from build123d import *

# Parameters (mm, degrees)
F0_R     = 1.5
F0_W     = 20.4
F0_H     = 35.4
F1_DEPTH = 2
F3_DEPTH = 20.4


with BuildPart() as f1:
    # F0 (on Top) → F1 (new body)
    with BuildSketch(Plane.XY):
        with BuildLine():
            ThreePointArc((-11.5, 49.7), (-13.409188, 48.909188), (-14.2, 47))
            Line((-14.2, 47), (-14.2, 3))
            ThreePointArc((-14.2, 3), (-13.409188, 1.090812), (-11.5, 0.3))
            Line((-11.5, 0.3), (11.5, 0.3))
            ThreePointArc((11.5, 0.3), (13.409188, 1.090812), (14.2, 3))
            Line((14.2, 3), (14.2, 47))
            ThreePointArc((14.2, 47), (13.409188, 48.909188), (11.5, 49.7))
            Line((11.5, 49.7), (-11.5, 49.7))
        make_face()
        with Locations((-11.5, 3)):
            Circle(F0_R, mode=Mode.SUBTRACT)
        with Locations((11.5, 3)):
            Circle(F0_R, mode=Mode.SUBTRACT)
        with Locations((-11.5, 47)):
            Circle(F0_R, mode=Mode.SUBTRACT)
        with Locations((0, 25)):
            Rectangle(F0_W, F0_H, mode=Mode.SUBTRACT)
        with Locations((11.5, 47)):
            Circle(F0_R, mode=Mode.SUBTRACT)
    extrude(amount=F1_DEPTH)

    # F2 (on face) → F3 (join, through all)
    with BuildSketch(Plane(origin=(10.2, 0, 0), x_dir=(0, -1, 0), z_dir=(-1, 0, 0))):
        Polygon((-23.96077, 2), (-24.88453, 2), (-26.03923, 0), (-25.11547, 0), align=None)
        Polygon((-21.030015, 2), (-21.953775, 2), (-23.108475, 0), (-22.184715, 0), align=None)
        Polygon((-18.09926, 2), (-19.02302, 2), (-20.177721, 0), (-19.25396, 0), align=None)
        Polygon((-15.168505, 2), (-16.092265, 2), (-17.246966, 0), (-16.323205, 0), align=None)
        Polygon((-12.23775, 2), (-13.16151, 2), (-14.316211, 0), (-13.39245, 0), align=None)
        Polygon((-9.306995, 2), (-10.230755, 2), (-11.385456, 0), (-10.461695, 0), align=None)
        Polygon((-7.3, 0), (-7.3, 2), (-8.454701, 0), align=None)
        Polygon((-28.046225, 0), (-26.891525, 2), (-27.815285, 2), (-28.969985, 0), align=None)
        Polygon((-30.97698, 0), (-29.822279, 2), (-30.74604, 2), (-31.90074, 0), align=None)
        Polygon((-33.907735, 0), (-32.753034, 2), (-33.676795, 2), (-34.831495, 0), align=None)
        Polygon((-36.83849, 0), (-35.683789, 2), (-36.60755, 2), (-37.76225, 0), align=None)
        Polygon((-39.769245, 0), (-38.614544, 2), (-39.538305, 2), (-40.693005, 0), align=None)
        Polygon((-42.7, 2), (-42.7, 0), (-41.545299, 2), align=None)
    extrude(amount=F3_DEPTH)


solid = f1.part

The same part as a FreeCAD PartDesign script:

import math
import FreeCAD as App
import Part
import Sketcher

V = App.Vector
Q = App.Units.Quantity

doc = App.newDocument("Part")
body = doc.addObject("PartDesign::Body", "Body")

# Sketch on XY plane
sketch1 = doc.addObject("Sketcher::SketchObject", "Sketch")
body.addObject(sketch1)
sketch1.AttachmentSupport = (doc.XY_Plane, [""])
sketch1.MapMode = "FlatFace"
sketch1.addGeometry(Part.ArcOfCircle(Part.Circle(V(-11.5, 47, 0), V(0, 0, 1), 2.7), math.radians(90), math.radians(180)), False)
sketch1.addGeometry(Part.LineSegment(V(-14.2, 47, 0), V(-14.2, 3, 0)), False)
sketch1.addGeometry(Part.ArcOfCircle(Part.Circle(V(-11.5, 3, 0), V(0, 0, 1), 2.7), math.radians(-180), math.radians(-90)), False)
sketch1.addGeometry(Part.LineSegment(V(-11.5, 0.3, 0), V(11.5, 0.3, 0)), False)
sketch1.addGeometry(Part.ArcOfCircle(Part.Circle(V(11.5, 3, 0), V(0, 0, 1), 2.7), math.radians(-90), math.radians(0)), False)
sketch1.addGeometry(Part.LineSegment(V(14.2, 3, 0), V(14.2, 47, 0)), False)
sketch1.addGeometry(Part.ArcOfCircle(Part.Circle(V(11.5, 47, 0), V(0, 0, 1), 2.7), math.radians(0), math.radians(90)), False)
sketch1.addGeometry(Part.LineSegment(V(11.5, 49.7, 0), V(-11.5, 49.7, 0)), False)
sketch1.addGeometry(Part.Circle(V(-11.5, 3, 0), V(0, 0, 1), 1.5), False)
sketch1.addGeometry(Part.Circle(V(11.5, 3, 0), V(0, 0, 1), 1.5), False)
sketch1.addGeometry(Part.Circle(V(-11.5, 47, 0), V(0, 0, 1), 1.5), False)
sketch1.addGeometry(Part.LineSegment(V(10.2, 7.3, 0), V(-10.2, 7.3, 0)), False)
sketch1.addGeometry(Part.LineSegment(V(-10.2, 7.3, 0), V(-10.2, 42.7, 0)), False)
sketch1.addGeometry(Part.LineSegment(V(-10.2, 42.7, 0), V(10.2, 42.7, 0)), False)
sketch1.addGeometry(Part.LineSegment(V(10.2, 42.7, 0), V(10.2, 7.3, 0)), False)
sketch1.addGeometry(Part.Circle(V(11.5, 47, 0), V(0, 0, 1), 1.5), False)
sketch1.addConstraint(Sketcher.Constraint("Tangent", 0, 2, 1, 1))
sketch1.addConstraint(Sketcher.Constraint("Tangent", 1, 2, 2, 1))
sketch1.addConstraint(Sketcher.Constraint("Tangent", 2, 2, 3, 1))
sketch1.addConstraint(Sketcher.Constraint("Tangent", 3, 2, 4, 1))
sketch1.addConstraint(Sketcher.Constraint("Tangent", 4, 2, 5, 1))
sketch1.addConstraint(Sketcher.Constraint("Tangent", 5, 2, 6, 1))
sketch1.addConstraint(Sketcher.Constraint("Tangent", 6, 2, 7, 1))
sketch1.addConstraint(Sketcher.Constraint("Tangent", 7, 2, 0, 1))
sketch1.addConstraint(Sketcher.Constraint("Coincident", 11, 2, 12, 1))
sketch1.addConstraint(Sketcher.Constraint("Coincident", 12, 2, 13, 1))
sketch1.addConstraint(Sketcher.Constraint("Coincident", 13, 2, 14, 1))
sketch1.addConstraint(Sketcher.Constraint("Coincident", 14, 2, 11, 1))
sketch1.addConstraint(Sketcher.Constraint("Vertical", 1))
sketch1.addConstraint(Sketcher.Constraint("Horizontal", 3))
sketch1.addConstraint(Sketcher.Constraint("Vertical", 5))
sketch1.addConstraint(Sketcher.Constraint("Horizontal", 7))
sketch1.addConstraint(Sketcher.Constraint("Horizontal", 11))
sketch1.addConstraint(Sketcher.Constraint("Vertical", 12))
sketch1.addConstraint(Sketcher.Constraint("Horizontal", 13))
sketch1.addConstraint(Sketcher.Constraint("Vertical", 14))
sketch1.addConstraint(Sketcher.Constraint("Coincident", 8, 3, 2, 3))
sketch1.addConstraint(Sketcher.Constraint("Coincident", 9, 3, 4, 3))
sketch1.addConstraint(Sketcher.Constraint("Coincident", 10, 3, 0, 3))
sketch1.addConstraint(Sketcher.Constraint("Coincident", 15, 3, 6, 3))
sketch1.addConstraint(Sketcher.Constraint("Equal", 0, 2))
sketch1.addConstraint(Sketcher.Constraint("Equal", 2, 4))
sketch1.addConstraint(Sketcher.Constraint("Equal", 4, 6))
sketch1.addConstraint(Sketcher.Constraint("Equal", 8, 9))
sketch1.addConstraint(Sketcher.Constraint("Equal", 9, 10))
sketch1.addConstraint(Sketcher.Constraint("Equal", 10, 15))
sketch1.addConstraint(Sketcher.Constraint("Diameter", 8, Q("3 mm")))
sketch1.addConstraint(Sketcher.Constraint("Radius", 0, Q("2.700001 mm")))
sketch1.addConstraint(Sketcher.Constraint("DistanceX", 3, 1, 3, 2, Q("23 mm")))
sketch1.addConstraint(Sketcher.Constraint("DistanceY", 1, 2, 1, 1, Q("44 mm")))
sketch1.addConstraint(Sketcher.Constraint("DistanceX", 11, 2, 11, 1, Q("20.4 mm")))
sketch1.addConstraint(Sketcher.Constraint("DistanceY", 12, 1, 12, 2, Q("35.4 mm")))
sketch1.addConstraint(Sketcher.Constraint("DistanceY", -1, 1, 0, 3, Q("46.999999 mm")))
sketch1.addConstraint(Sketcher.Constraint("DistanceX", 1, 2, 11, 2, Q("4 mm")))
sketch1.addConstraint(Sketcher.Constraint("DistanceY", 2, 2, 11, 2, Q("7 mm")))
sketch1.addConstraint(Sketcher.Constraint("DistanceX", 0, 3, -1, 1, Q("11.499999 mm")))
pad1 = doc.addObject("PartDesign::Pad", "Pad")
body.addObject(pad1)
pad1.Profile = sketch1
pad1.Length = 2

# Sketch on YZ plane
sketch2 = doc.addObject("Sketcher::SketchObject", "Sketch001")
body.addObject(sketch2)
sketch2.AttachmentSupport = (doc.YZ_Plane, [""])
sketch2.MapMode = "FlatFace"
sketch2.AttachmentOffset = App.Placement(V(0, 0, 10.2), App.Rotation())
sketch2.addGeometry(Part.LineSegment(V(24, 2, 0), V(24.9, 2, 0)), False)
sketch2.addGeometry(Part.LineSegment(V(24.9, 2, 0), V(26, 0, 0)), False)
sketch2.addGeometry(Part.LineSegment(V(26, 0, 0), V(25.1, 0, 0)), False)
sketch2.addGeometry(Part.LineSegment(V(25.1, 0, 0), V(24, 2, 0)), False)
sketch2.addGeometry(Part.LineSegment(V(21, 2, 0), V(22, 2, 0)), False)
sketch2.addGeometry(Part.LineSegment(V(22, 2, 0), V(23.1, 0, 0)), False)
sketch2.addGeometry(Part.LineSegment(V(23.1, 0, 0), V(22.2, 0, 0)), False)
sketch2.addGeometry(Part.LineSegment(V(22.2, 0, 0), V(21, 2, 0)), False)
sketch2.addGeometry(Part.LineSegment(V(18.1, 2, 0), V(19, 2, 0)), False)
sketch2.addGeometry(Part.LineSegment(V(19, 2, 0), V(20.2, 0, 0)), False)
sketch2.addGeometry(Part.LineSegment(V(20.2, 0, 0), V(19.3, 0, 0)), False)
sketch2.addGeometry(Part.LineSegment(V(19.3, 0, 0), V(18.1, 2, 0)), False)
sketch2.addGeometry(Part.LineSegment(V(15.2, 2, 0), V(16.1, 2, 0)), False)
sketch2.addGeometry(Part.LineSegment(V(16.1, 2, 0), V(17.2, 0, 0)), False)
sketch2.addGeometry(Part.LineSegment(V(17.2, 0, 0), V(16.3, 0, 0)), False)
sketch2.addGeometry(Part.LineSegment(V(16.3, 0, 0), V(15.2, 2, 0)), False)
sketch2.addGeometry(Part.LineSegment(V(12.2, 2, 0), V(13.2, 2, 0)), False)
sketch2.addGeometry(Part.LineSegment(V(13.2, 2, 0), V(14.3, 0, 0)), False)
sketch2.addGeometry(Part.LineSegment(V(14.3, 0, 0), V(13.4, 0, 0)), False)
sketch2.addGeometry(Part.LineSegment(V(13.4, 0, 0), V(12.2, 2, 0)), False)
sketch2.addGeometry(Part.LineSegment(V(9.3, 2, 0), V(10.2, 2, 0)), False)
sketch2.addGeometry(Part.LineSegment(V(10.2, 2, 0), V(11.4, 0, 0)), False)
sketch2.addGeometry(Part.LineSegment(V(11.4, 0, 0), V(10.5, 0, 0)), False)
sketch2.addGeometry(Part.LineSegment(V(10.5, 0, 0), V(9.3, 2, 0)), False)
sketch2.addGeometry(Part.LineSegment(V(7.3, 0, 0), V(7.3, 2, 0)), False)
sketch2.addGeometry(Part.LineSegment(V(7.3, 2, 0), V(8.5, 0, 0)), False)
sketch2.addGeometry(Part.LineSegment(V(8.5, 0, 0), V(7.3, 0, 0)), False)
sketch2.addGeometry(Part.LineSegment(V(28, 0, 0), V(26.9, 2, 0)), False)
sketch2.addGeometry(Part.LineSegment(V(26.9, 2, 0), V(27.8, 2, 0)), False)
sketch2.addGeometry(Part.LineSegment(V(27.8, 2, 0), V(29, 0, 0)), False)
sketch2.addGeometry(Part.LineSegment(V(29, 0, 0), V(28, 0, 0)), False)
sketch2.addGeometry(Part.LineSegment(V(31, 0, 0), V(29.8, 2, 0)), False)
sketch2.addGeometry(Part.LineSegment(V(29.8, 2, 0), V(30.7, 2, 0)), False)
sketch2.addGeometry(Part.LineSegment(V(30.7, 2, 0), V(31.9, 0, 0)), False)
sketch2.addGeometry(Part.LineSegment(V(31.9, 0, 0), V(31, 0, 0)), False)
sketch2.addGeometry(Part.LineSegment(V(33.9, 0, 0), V(32.8, 2, 0)), False)
sketch2.addGeometry(Part.LineSegment(V(32.8, 2, 0), V(33.7, 2, 0)), False)
sketch2.addGeometry(Part.LineSegment(V(33.7, 2, 0), V(34.8, 0, 0)), False)
sketch2.addGeometry(Part.LineSegment(V(34.8, 0, 0), V(33.9, 0, 0)), False)
sketch2.addGeometry(Part.LineSegment(V(36.8, 0, 0), V(35.7, 2, 0)), False)
sketch2.addGeometry(Part.LineSegment(V(35.7, 2, 0), V(36.6, 2, 0)), False)
sketch2.addGeometry(Part.LineSegment(V(36.6, 2, 0), V(37.8, 0, 0)), False)
sketch2.addGeometry(Part.LineSegment(V(37.8, 0, 0), V(36.8, 0, 0)), False)
sketch2.addGeometry(Part.LineSegment(V(39.8, 0, 0), V(38.6, 2, 0)), False)
sketch2.addGeometry(Part.LineSegment(V(38.6, 2, 0), V(39.5, 2, 0)), False)
sketch2.addGeometry(Part.LineSegment(V(39.5, 2, 0), V(40.7, 0, 0)), False)
sketch2.addGeometry(Part.LineSegment(V(40.7, 0, 0), V(39.8, 0, 0)), False)
sketch2.addGeometry(Part.LineSegment(V(42.7, 2, 0), V(42.7, 0, 0)), False)
sketch2.addGeometry(Part.LineSegment(V(42.7, 0, 0), V(41.5, 2, 0)), False)
sketch2.addGeometry(Part.LineSegment(V(41.5, 2, 0), V(42.7, 2, 0)), False)
sketch2.addConstraint(Sketcher.Constraint("Coincident", 0, 2, 1, 1))
sketch2.addConstraint(Sketcher.Constraint("Coincident", 1, 2, 2, 1))
sketch2.addConstraint(Sketcher.Constraint("Coincident", 2, 2, 3, 1))
sketch2.addConstraint(Sketcher.Constraint("Coincident", 3, 2, 0, 1))
sketch2.addConstraint(Sketcher.Constraint("Coincident", 4, 2, 5, 1))
sketch2.addConstraint(Sketcher.Constraint("Coincident", 5, 2, 6, 1))
sketch2.addConstraint(Sketcher.Constraint("Coincident", 6, 2, 7, 1))
sketch2.addConstraint(Sketcher.Constraint("Coincident", 7, 2, 4, 1))
sketch2.addConstraint(Sketcher.Constraint("Coincident", 8, 2, 9, 1))
sketch2.addConstraint(Sketcher.Constraint("Coincident", 9, 2, 10, 1))
sketch2.addConstraint(Sketcher.Constraint("Coincident", 10, 2, 11, 1))
sketch2.addConstraint(Sketcher.Constraint("Coincident", 11, 2, 8, 1))
sketch2.addConstraint(Sketcher.Constraint("Coincident", 12, 2, 13, 1))
sketch2.addConstraint(Sketcher.Constraint("Coincident", 13, 2, 14, 1))
sketch2.addConstraint(Sketcher.Constraint("Coincident", 14, 2, 15, 1))
sketch2.addConstraint(Sketcher.Constraint("Coincident", 15, 2, 12, 1))
sketch2.addConstraint(Sketcher.Constraint("Coincident", 16, 2, 17, 1))
sketch2.addConstraint(Sketcher.Constraint("Coincident", 17, 2, 18, 1))
sketch2.addConstraint(Sketcher.Constraint("Coincident", 18, 2, 19, 1))
sketch2.addConstraint(Sketcher.Constraint("Coincident", 19, 2, 16, 1))
sketch2.addConstraint(Sketcher.Constraint("Coincident", 20, 2, 21, 1))
sketch2.addConstraint(Sketcher.Constraint("Coincident", 21, 2, 22, 1))
sketch2.addConstraint(Sketcher.Constraint("Coincident", 22, 2, 23, 1))
sketch2.addConstraint(Sketcher.Constraint("Coincident", 23, 2, 20, 1))
sketch2.addConstraint(Sketcher.Constraint("Coincident", 24, 2, 25, 1))
sketch2.addConstraint(Sketcher.Constraint("Coincident", 25, 2, 26, 1))
sketch2.addConstraint(Sketcher.Constraint("Coincident", 26, 2, 24, 1))
sketch2.addConstraint(Sketcher.Constraint("Coincident", 27, 2, 28, 1))
sketch2.addConstraint(Sketcher.Constraint("Coincident", 28, 2, 29, 1))
sketch2.addConstraint(Sketcher.Constraint("Coincident", 29, 2, 30, 1))
sketch2.addConstraint(Sketcher.Constraint("Coincident", 30, 2, 27, 1))
sketch2.addConstraint(Sketcher.Constraint("Coincident", 31, 2, 32, 1))
sketch2.addConstraint(Sketcher.Constraint("Coincident", 32, 2, 33, 1))
sketch2.addConstraint(Sketcher.Constraint("Coincident", 33, 2, 34, 1))
sketch2.addConstraint(Sketcher.Constraint("Coincident", 34, 2, 31, 1))
sketch2.addConstraint(Sketcher.Constraint("Coincident", 35, 2, 36, 1))
sketch2.addConstraint(Sketcher.Constraint("Coincident", 36, 2, 37, 1))
sketch2.addConstraint(Sketcher.Constraint("Coincident", 37, 2, 38, 1))
sketch2.addConstraint(Sketcher.Constraint("Coincident", 38, 2, 35, 1))
sketch2.addConstraint(Sketcher.Constraint("Coincident", 39, 2, 40, 1))
sketch2.addConstraint(Sketcher.Constraint("Coincident", 40, 2, 41, 1))
sketch2.addConstraint(Sketcher.Constraint("Coincident", 41, 2, 42, 1))
sketch2.addConstraint(Sketcher.Constraint("Coincident", 42, 2, 39, 1))
sketch2.addConstraint(Sketcher.Constraint("Coincident", 43, 2, 44, 1))
sketch2.addConstraint(Sketcher.Constraint("Coincident", 44, 2, 45, 1))
sketch2.addConstraint(Sketcher.Constraint("Coincident", 45, 2, 46, 1))
sketch2.addConstraint(Sketcher.Constraint("Coincident", 46, 2, 43, 1))
sketch2.addConstraint(Sketcher.Constraint("Coincident", 47, 2, 48, 1))
sketch2.addConstraint(Sketcher.Constraint("Coincident", 48, 2, 49, 1))
sketch2.addConstraint(Sketcher.Constraint("Coincident", 49, 2, 47, 1))
sketch2.addConstraint(Sketcher.Constraint("Horizontal", 0))
sketch2.addConstraint(Sketcher.Constraint("Horizontal", 2))
sketch2.addConstraint(Sketcher.Constraint("Horizontal", 4))
sketch2.addConstraint(Sketcher.Constraint("Horizontal", 6))
sketch2.addConstraint(Sketcher.Constraint("Horizontal", 8))
sketch2.addConstraint(Sketcher.Constraint("Horizontal", 10))
sketch2.addConstraint(Sketcher.Constraint("Horizontal", 12))
sketch2.addConstraint(Sketcher.Constraint("Horizontal", 14))
sketch2.addConstraint(Sketcher.Constraint("Horizontal", 16))
sketch2.addConstraint(Sketcher.Constraint("Horizontal", 18))
sketch2.addConstraint(Sketcher.Constraint("Horizontal", 20))
sketch2.addConstraint(Sketcher.Constraint("Horizontal", 22))
sketch2.addConstraint(Sketcher.Constraint("Vertical", 24))
sketch2.addConstraint(Sketcher.Constraint("Horizontal", 26))
sketch2.addConstraint(Sketcher.Constraint("Horizontal", 28))
sketch2.addConstraint(Sketcher.Constraint("Horizontal", 30))
sketch2.addConstraint(Sketcher.Constraint("Horizontal", 32))
sketch2.addConstraint(Sketcher.Constraint("Horizontal", 34))
sketch2.addConstraint(Sketcher.Constraint("Horizontal", 36))
sketch2.addConstraint(Sketcher.Constraint("Horizontal", 38))
sketch2.addConstraint(Sketcher.Constraint("Horizontal", 40))
sketch2.addConstraint(Sketcher.Constraint("Horizontal", 42))
sketch2.addConstraint(Sketcher.Constraint("Horizontal", 44))
sketch2.addConstraint(Sketcher.Constraint("Horizontal", 46))
sketch2.addConstraint(Sketcher.Constraint("Vertical", 47))
sketch2.addConstraint(Sketcher.Constraint("Horizontal", 49))
sketch2.addConstraint(Sketcher.Constraint("PointOnObject", 1, 2, -1))
sketch2.addConstraint(Sketcher.Constraint("PointOnObject", 5, 2, -1))
sketch2.addConstraint(Sketcher.Constraint("PointOnObject", 9, 2, -1))
sketch2.addConstraint(Sketcher.Constraint("PointOnObject", 13, 2, -1))
sketch2.addConstraint(Sketcher.Constraint("PointOnObject", 17, 2, -1))
sketch2.addConstraint(Sketcher.Constraint("PointOnObject", 21, 2, -1))
sketch2.addConstraint(Sketcher.Constraint("PointOnObject", 25, 2, -1))
sketch2.addConstraint(Sketcher.Constraint("PointOnObject", 29, 2, -1))
sketch2.addConstraint(Sketcher.Constraint("PointOnObject", 33, 2, -1))
sketch2.addConstraint(Sketcher.Constraint("PointOnObject", 37, 2, -1))
sketch2.addConstraint(Sketcher.Constraint("PointOnObject", 41, 2, -1))
sketch2.addConstraint(Sketcher.Constraint("PointOnObject", 45, 2, -1))
sketch2.addConstraint(Sketcher.Constraint("PointOnObject", 47, 2, -1))
sketch2.addConstraint(Sketcher.Constraint("Parallel", 1, 3))
sketch2.addConstraint(Sketcher.Constraint("Parallel", 3, 5))
sketch2.addConstraint(Sketcher.Constraint("Parallel", 5, 7))
sketch2.addConstraint(Sketcher.Constraint("Parallel", 7, 9))
sketch2.addConstraint(Sketcher.Constraint("Parallel", 9, 11))
sketch2.addConstraint(Sketcher.Constraint("Parallel", 11, 13))
sketch2.addConstraint(Sketcher.Constraint("Parallel", 13, 15))
sketch2.addConstraint(Sketcher.Constraint("Parallel", 15, 17))
sketch2.addConstraint(Sketcher.Constraint("Parallel", 17, 19))
sketch2.addConstraint(Sketcher.Constraint("Parallel", 19, 21))
sketch2.addConstraint(Sketcher.Constraint("Parallel", 21, 23))
sketch2.addConstraint(Sketcher.Constraint("Parallel", 23, 25))
sketch2.addConstraint(Sketcher.Constraint("Parallel", 25, 27))
sketch2.addConstraint(Sketcher.Constraint("Parallel", 27, 29))
sketch2.addConstraint(Sketcher.Constraint("Parallel", 29, 31))
sketch2.addConstraint(Sketcher.Constraint("Parallel", 31, 33))
sketch2.addConstraint(Sketcher.Constraint("Parallel", 33, 35))
sketch2.addConstraint(Sketcher.Constraint("Parallel", 35, 37))
sketch2.addConstraint(Sketcher.Constraint("Parallel", 37, 39))
sketch2.addConstraint(Sketcher.Constraint("Parallel", 39, 41))
sketch2.addConstraint(Sketcher.Constraint("Parallel", 41, 43))
sketch2.addConstraint(Sketcher.Constraint("Parallel", 43, 45))
sketch2.addConstraint(Sketcher.Constraint("Parallel", 45, 48))
sketch2.addConstraint(Sketcher.Constraint("Horizontal", 3, 2, 4, 2))
sketch2.addConstraint(Sketcher.Constraint("Horizontal", 7, 2, 8, 2))
sketch2.addConstraint(Sketcher.Constraint("Horizontal", 11, 2, 12, 2))
sketch2.addConstraint(Sketcher.Constraint("Horizontal", 15, 2, 16, 2))
sketch2.addConstraint(Sketcher.Constraint("Horizontal", 19, 2, 20, 2))
sketch2.addConstraint(Sketcher.Constraint("Horizontal", 23, 2, 24, 2))
sketch2.addConstraint(Sketcher.Constraint("Horizontal", 24, 2, 27, 2))
sketch2.addConstraint(Sketcher.Constraint("Horizontal", 28, 2, 31, 2))
sketch2.addConstraint(Sketcher.Constraint("Horizontal", 32, 2, 35, 2))
sketch2.addConstraint(Sketcher.Constraint("Horizontal", 36, 2, 39, 2))
sketch2.addConstraint(Sketcher.Constraint("Horizontal", 40, 2, 43, 2))
sketch2.addConstraint(Sketcher.Constraint("Horizontal", 44, 2, 48, 2))
sketch2.addConstraint(Sketcher.Constraint("Equal", 2, 4))
sketch2.addConstraint(Sketcher.Constraint("Equal", 6, 8))
sketch2.addConstraint(Sketcher.Constraint("Equal", 10, 12))
sketch2.addConstraint(Sketcher.Constraint("Equal", 14, 16))
sketch2.addConstraint(Sketcher.Constraint("Equal", 18, 20))
sketch2.addConstraint(Sketcher.Constraint("Equal", 22, 28))
sketch2.addConstraint(Sketcher.Constraint("Equal", 30, 32))
sketch2.addConstraint(Sketcher.Constraint("Equal", 34, 36))
sketch2.addConstraint(Sketcher.Constraint("Equal", 38, 40))
sketch2.addConstraint(Sketcher.Constraint("Equal", 42, 44))
sketch2.addConstraint(Sketcher.Constraint("DistanceY", 24, 1, 24, 2, Q("2 mm")))
sketch2.addConstraint(Sketcher.Constraint("Angle", 1, Q("-60.000012 deg")))
sketch2.addConstraint(Sketcher.Constraint("DistanceX", -1, 1, 24, 2, Q("7.3 mm")))
sketch2.addConstraint(Sketcher.Constraint("DistanceX", -1, 1, 47, 2, Q("42.7 mm")))
sketch2.addConstraint(Sketcher.Constraint("DistanceX", 0, 1, 0, 2, Q("0.92376 mm")))
sketch2.addConstraint(Sketcher.Constraint("DistanceX", -1, 1, 0, 2, Q("24.88453 mm")))
sketch2.addConstraint(Sketcher.Constraint("DistanceX", -1, 1, 8, 2, Q("19.02302 mm")))
sketch2.addConstraint(Sketcher.Constraint("DistanceX", -1, 1, 16, 2, Q("13.16151 mm")))
sketch2.addConstraint(Sketcher.Constraint("DistanceX", -1, 1, 31, 2, Q("29.822279 mm")))
sketch2.addConstraint(Sketcher.Constraint("DistanceX", -1, 1, 39, 2, Q("35.683789 mm")))
sketch2.addConstraint(Sketcher.Constraint("DistanceX", 12, 2, 7, 2, Q("4.93775 mm")))
sketch2.addConstraint(Sketcher.Constraint("DistanceX", 20, 2, 15, 2, Q("4.93775 mm")))
sketch2.addConstraint(Sketcher.Constraint("DistanceX", 5, 2, 27, 2, Q("3.78305 mm")))
sketch2.addConstraint(Sketcher.Constraint("DistanceX", 29, 2, 35, 2, Q("3.783049 mm")))
sketch2.addConstraint(Sketcher.Constraint("DistanceX", 37, 2, 43, 2, Q("3.783049 mm")))
sketch2.addConstraint(Sketcher.Constraint("DistanceX", -1, 1, 4, 2, Q("21.953775 mm")))
pad2 = doc.addObject("PartDesign::Pad", "Pad001")
body.addObject(pad2)
pad2.Profile = sketch2
pad2.Type = "UpToLast"
pad2.Reversed = True

doc.recompute()
